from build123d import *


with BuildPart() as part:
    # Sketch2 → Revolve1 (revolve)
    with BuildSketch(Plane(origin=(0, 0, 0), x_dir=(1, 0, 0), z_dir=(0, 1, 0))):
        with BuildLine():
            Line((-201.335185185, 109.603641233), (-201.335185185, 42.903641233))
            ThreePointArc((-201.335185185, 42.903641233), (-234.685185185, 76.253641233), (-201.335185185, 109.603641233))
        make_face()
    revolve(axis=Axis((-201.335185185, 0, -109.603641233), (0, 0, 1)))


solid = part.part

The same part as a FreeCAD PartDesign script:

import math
import FreeCAD as App
import Part
import Sketcher

doc = App.newDocument("Part")
body = doc.addObject("PartDesign::Body", "Body")

# Sketch on XZ plane
sketch1 = body.newObject("Sketcher::SketchObject", "Sketch")
sketch1.AttachmentSupport = (doc.getObject("XZ_Plane"), [""])
sketch1.MapMode = "FlatFace"
sketch1.addGeometry([
    Part.LineSegment(App.Vector(-201, -43, 0), App.Vector(-201, -110, 0)),
    Part.ArcOfCircle(Part.Circle(App.Vector(-201, -76, 0), App.Vector(0, 0, 1), 33), math.radians(90), math.radians(270)),
], False)
sketch1.addGeometry(Part.LineSegment(App.Vector(-201, -110, 0), App.Vector(-201, -43, 0)), True)  # axis
sketch1.addConstraint([
    Sketcher.Constraint("Coincident", 0, 1, 1, 1),
    Sketcher.Constraint("Coincident", 1, 2, 0, 2),
    Sketcher.Constraint("Vertical", 0),
    Sketcher.Constraint("Vertical", 2),
    Sketcher.Constraint("Coincident", 2, 1, 1, 2),
    Sketcher.Constraint("Vertical", 1, 3, 0, 1),
    Sketcher.Constraint("Equal", 0, 2),
    Sketcher.Constraint("Radius", 1, 33.35),
    Sketcher.Constraint("DistanceY", 1, 3, -1, 1, 76.253641),
    Sketcher.Constraint("DistanceX", 1, 3, -1, 1, 201.335185),
])
revolution = body.newObject("PartDesign::Revolution", "Revolution")
revolution.Profile = sketch1
revolution.ReferenceAxis = (sketch1, ["Axis0"])
revolution.Angle = 360

doc.recompute()
